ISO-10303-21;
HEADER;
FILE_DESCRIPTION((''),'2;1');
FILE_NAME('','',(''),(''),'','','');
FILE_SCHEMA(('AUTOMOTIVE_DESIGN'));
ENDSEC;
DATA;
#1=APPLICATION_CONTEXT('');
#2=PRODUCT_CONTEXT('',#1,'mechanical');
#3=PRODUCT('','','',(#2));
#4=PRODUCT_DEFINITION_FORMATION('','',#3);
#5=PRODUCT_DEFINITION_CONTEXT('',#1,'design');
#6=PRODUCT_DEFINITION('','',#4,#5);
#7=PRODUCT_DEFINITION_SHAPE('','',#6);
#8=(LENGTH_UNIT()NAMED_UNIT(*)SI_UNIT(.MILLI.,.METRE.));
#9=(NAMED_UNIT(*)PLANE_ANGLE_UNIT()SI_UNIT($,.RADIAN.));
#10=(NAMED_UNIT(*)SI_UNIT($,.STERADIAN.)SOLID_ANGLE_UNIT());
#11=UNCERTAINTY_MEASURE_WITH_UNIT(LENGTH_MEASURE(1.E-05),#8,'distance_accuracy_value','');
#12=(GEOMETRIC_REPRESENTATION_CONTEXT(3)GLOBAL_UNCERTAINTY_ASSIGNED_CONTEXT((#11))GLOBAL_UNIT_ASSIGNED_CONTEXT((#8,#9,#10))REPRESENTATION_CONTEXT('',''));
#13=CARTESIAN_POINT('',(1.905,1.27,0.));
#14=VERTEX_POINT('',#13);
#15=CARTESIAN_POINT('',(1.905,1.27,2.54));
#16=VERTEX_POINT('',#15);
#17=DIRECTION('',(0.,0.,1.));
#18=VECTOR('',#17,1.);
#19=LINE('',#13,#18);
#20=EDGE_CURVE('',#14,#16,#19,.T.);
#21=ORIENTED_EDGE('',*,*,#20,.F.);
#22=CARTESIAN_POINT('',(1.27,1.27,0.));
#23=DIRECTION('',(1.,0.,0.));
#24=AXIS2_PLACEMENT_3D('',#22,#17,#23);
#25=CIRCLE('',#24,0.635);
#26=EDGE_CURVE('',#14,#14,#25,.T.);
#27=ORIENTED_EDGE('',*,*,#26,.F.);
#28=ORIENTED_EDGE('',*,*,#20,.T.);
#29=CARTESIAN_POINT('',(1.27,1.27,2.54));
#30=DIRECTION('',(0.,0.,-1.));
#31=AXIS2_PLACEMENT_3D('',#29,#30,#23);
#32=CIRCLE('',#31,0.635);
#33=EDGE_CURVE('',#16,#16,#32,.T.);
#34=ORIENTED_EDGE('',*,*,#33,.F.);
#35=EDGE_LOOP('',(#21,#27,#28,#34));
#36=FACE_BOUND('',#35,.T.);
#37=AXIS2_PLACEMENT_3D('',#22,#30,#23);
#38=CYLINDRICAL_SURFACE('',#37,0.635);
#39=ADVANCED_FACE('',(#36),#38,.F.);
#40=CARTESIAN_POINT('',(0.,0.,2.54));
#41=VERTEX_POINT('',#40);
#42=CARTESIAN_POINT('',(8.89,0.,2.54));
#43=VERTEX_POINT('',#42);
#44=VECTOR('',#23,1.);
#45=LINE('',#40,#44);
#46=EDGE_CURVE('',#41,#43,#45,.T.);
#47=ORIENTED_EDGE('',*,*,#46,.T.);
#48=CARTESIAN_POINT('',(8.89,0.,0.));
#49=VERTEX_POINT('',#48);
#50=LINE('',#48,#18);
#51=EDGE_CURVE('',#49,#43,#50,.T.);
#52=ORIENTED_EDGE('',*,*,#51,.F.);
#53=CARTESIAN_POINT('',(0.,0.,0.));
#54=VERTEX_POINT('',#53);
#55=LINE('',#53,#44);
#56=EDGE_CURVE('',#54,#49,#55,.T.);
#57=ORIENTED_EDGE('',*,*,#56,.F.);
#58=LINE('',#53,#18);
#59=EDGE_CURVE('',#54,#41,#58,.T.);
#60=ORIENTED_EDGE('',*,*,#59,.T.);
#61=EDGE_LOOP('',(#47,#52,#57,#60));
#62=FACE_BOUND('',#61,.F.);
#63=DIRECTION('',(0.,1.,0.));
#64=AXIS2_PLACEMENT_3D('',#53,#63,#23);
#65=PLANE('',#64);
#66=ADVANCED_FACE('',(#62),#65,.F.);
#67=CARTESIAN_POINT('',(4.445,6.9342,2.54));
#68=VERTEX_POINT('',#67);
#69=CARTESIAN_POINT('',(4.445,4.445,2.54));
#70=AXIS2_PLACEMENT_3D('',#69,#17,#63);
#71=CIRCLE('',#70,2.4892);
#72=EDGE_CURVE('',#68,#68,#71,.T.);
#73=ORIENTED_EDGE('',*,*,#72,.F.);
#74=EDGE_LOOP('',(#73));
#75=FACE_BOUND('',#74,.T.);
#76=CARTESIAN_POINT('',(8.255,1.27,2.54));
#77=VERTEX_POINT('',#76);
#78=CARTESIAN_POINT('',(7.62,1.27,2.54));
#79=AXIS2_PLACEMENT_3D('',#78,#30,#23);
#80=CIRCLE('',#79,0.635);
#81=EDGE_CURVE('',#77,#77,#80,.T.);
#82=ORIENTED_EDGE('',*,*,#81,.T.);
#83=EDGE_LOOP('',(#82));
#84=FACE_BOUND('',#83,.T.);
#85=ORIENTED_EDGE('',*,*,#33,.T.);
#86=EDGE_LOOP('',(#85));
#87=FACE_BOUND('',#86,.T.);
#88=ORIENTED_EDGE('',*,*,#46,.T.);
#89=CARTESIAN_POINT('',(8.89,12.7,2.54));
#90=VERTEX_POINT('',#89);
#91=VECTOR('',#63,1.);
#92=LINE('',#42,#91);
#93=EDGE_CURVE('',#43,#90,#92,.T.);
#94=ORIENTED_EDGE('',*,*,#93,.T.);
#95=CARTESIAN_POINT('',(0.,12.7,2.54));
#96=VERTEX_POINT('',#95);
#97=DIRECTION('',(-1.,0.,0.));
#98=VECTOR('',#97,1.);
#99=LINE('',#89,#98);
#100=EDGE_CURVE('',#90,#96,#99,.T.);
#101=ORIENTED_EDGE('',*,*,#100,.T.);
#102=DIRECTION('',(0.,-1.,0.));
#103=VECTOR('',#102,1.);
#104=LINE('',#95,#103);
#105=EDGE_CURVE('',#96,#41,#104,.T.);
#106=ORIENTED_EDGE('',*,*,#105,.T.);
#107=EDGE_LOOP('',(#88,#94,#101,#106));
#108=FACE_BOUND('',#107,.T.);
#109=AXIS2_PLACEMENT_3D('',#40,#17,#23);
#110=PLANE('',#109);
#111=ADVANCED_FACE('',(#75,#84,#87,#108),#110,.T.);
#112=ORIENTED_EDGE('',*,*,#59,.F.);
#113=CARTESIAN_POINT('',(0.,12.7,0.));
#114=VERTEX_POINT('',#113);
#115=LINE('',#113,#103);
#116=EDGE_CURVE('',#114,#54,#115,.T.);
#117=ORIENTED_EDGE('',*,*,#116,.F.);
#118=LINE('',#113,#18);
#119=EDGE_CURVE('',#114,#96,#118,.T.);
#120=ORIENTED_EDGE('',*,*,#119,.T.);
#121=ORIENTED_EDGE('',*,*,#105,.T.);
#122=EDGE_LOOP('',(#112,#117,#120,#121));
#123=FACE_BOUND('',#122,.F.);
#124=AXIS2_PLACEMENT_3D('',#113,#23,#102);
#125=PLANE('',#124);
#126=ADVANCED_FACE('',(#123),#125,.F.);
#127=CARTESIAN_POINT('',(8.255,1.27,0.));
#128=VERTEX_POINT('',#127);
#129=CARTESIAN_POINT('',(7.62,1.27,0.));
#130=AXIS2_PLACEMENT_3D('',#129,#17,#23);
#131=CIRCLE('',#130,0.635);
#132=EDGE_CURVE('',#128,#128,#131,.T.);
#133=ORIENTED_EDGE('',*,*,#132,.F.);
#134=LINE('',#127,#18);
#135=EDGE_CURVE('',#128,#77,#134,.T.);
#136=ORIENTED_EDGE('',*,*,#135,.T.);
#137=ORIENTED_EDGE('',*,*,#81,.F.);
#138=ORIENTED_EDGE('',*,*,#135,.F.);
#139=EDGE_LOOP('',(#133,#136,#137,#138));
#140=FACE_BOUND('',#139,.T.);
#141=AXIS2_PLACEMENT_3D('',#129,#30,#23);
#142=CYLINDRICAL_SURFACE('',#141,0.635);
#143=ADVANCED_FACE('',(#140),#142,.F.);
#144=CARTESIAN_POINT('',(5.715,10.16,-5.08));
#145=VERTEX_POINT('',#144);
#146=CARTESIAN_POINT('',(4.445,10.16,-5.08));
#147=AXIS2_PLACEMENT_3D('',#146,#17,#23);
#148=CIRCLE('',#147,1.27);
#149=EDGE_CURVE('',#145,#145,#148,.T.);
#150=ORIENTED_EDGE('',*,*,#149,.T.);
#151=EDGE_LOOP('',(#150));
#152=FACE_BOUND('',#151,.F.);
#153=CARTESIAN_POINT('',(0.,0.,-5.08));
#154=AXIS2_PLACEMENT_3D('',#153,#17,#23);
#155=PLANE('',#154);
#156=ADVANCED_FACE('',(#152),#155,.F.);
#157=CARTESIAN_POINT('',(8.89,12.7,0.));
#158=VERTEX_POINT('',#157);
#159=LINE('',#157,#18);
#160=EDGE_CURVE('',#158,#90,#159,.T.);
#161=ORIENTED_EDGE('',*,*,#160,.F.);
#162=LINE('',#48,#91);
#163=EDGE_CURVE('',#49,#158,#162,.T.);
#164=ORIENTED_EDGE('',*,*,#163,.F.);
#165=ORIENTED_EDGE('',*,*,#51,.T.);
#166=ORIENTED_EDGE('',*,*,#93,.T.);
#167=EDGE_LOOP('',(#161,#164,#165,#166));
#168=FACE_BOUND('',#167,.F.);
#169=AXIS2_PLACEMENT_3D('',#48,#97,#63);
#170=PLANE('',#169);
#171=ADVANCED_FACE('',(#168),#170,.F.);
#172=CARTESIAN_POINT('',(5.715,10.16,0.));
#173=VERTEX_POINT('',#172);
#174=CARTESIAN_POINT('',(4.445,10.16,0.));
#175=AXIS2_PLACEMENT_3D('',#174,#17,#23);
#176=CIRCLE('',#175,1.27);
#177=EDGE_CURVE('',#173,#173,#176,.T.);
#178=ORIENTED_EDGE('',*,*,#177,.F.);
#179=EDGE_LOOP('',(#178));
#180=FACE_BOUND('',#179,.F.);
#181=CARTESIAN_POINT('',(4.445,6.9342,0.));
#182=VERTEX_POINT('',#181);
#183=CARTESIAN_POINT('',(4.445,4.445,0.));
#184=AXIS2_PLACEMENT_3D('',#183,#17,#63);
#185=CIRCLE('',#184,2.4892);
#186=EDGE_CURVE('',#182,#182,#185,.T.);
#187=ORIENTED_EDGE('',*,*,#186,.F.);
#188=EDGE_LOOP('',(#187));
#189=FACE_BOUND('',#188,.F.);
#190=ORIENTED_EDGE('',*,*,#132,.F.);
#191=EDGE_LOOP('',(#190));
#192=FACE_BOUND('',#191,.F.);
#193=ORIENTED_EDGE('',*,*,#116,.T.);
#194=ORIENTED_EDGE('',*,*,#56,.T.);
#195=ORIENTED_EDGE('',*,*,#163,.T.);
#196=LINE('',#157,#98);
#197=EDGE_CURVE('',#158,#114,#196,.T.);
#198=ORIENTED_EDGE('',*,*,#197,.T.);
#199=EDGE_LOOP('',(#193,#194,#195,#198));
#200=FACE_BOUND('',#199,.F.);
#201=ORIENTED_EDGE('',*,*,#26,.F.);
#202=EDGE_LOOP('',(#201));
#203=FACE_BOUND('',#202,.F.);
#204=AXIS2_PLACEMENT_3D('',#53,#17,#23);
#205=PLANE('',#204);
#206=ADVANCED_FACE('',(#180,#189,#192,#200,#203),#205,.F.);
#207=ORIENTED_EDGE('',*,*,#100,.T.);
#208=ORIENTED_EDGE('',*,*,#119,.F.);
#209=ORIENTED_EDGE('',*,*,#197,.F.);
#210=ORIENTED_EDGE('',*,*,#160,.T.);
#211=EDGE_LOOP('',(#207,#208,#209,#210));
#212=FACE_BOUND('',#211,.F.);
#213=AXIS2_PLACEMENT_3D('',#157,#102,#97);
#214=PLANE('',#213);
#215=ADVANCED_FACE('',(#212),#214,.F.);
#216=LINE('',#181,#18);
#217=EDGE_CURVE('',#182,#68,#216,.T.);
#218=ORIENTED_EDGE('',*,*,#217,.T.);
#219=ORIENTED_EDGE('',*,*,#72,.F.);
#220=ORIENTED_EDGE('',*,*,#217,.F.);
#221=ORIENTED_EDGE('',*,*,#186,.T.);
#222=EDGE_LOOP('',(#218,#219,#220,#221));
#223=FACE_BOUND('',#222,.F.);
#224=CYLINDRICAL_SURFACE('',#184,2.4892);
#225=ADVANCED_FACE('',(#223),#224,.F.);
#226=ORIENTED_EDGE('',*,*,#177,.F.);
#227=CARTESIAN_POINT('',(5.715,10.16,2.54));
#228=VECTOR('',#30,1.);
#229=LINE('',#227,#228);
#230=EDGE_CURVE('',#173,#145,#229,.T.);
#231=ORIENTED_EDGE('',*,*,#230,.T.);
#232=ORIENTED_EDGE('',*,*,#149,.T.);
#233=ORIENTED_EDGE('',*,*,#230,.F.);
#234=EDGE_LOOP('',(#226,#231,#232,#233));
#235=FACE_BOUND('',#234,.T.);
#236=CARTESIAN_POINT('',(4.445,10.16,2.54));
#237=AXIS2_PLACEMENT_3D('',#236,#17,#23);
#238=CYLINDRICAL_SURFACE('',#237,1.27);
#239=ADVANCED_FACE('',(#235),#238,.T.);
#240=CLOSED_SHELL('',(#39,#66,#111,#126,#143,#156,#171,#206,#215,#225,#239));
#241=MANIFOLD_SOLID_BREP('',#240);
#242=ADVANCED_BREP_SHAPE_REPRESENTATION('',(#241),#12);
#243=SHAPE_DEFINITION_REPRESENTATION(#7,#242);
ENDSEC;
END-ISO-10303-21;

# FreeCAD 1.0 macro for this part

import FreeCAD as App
import Part
import Sketcher
Q = App.Units.Quantity


def add_polygon(sketch, points):
    """Adds a closed chain of lines whose ends are joined by coincident constraints."""
    first, n = sketch.GeometryCount, len(points)
    for a, b in zip(points, points[1:] + points[:1]):
        sketch.addGeometry(Part.LineSegment(App.Vector(*a, 0), App.Vector(*b, 0)), False)
    for i in range(n):
        sketch.addConstraint(Sketcher.Constraint("Coincident", first + i, 2, first + (i + 1) % n, 1))

doc = App.newDocument("Part")
body = doc.addObject("PartDesign::Body", "Body")

# Sketch on XY plane
sketch1 = body.newObject("Sketcher::SketchObject", "Sketch")
sketch1.AttachmentSupport = (doc.getObject("XY_Plane"), [""])
sketch1.MapMode = "FlatFace"
add_polygon(sketch1, [(0, 13), (0, 0), (9, 0), (9, 13)])  # lines 0-3
sketch1.addConstraint([
    Sketcher.Constraint("Vertical", 0),
    Sketcher.Constraint("Horizontal", 1),
    Sketcher.Constraint("Vertical", 2),
    Sketcher.Constraint("Horizontal", 3),
    Sketcher.Constraint("Coincident", 0, 2, -1, 1),
    Sketcher.Constraint("DistanceY", 0, 2, 0, 1, Q("0.5 in")),
    Sketcher.Constraint("DistanceX", 1, 1, 1, 2, Q("0.35 in")),
])
pad1 = body.newObject("PartDesign::Pad", "Pad")
pad1.Profile = sketch1
pad1.Length = Q("0.1 in")

# Sketch on XY plane
sketch2 = body.newObject("Sketcher::SketchObject", "Sketch001")
sketch2.AttachmentSupport = (doc.getObject("XY_Plane"), [""])
sketch2.MapMode = "FlatFace"
sketch2.AttachmentOffset = App.Placement(App.Vector(0, 0, 0.1 * 25.4), App.Rotation())
sketch2.addGeometry(Part.Circle(App.Vector(4.4, 10.2, 0), App.Vector(0, 0, 1), 1.3), False)
sketch2.addConstraint([
    Sketcher.Constraint("Diameter", 0, Q("0.1 in")),
    Sketcher.Constraint("DistanceX", -1, 1, 0, 3, Q("0.175 in")),
    Sketcher.Constraint("DistanceY", -1, 1, 0, 3, Q("0.4 in")),
])
pad2 = body.newObject("PartDesign::Pad", "Pad001")
pad2.Profile = sketch2
pad2.Length = Q("0.3 in")
pad2.Reversed = True

# Sketch on XY plane
sketch3 = body.newObject("Sketcher::SketchObject", "Sketch002")
sketch3.AttachmentSupport = (doc.getObject("XY_Plane"), [""])
sketch3.MapMode = "FlatFace"
sketch3.addGeometry(Part.Circle(App.Vector(4.4, 4.4, 0), App.Vector(0, 0, 1), 2.5), False)
sketch3.addConstraint([
    Sketcher.Constraint("Diameter", 0, Q("0.196 in")),
    Sketcher.Constraint("DistanceX", -1, 1, 0, 3, Q("0.175 in")),
    Sketcher.Constraint("DistanceY", -1, 1, 0, 3, Q("0.175 in")),
])
doc.recompute()
hole = body.newObject("PartDesign::Hole", "Hole")
hole.Profile = sketch3
hole.ThreadType = "None"
hole.Diameter = Q("0.196 in")
hole.DepthType = "Dimension"
hole.Depth = Q("0.75 in")
hole.DrillPoint = "Angled"
hole.DrillPointAngle = 118
hole.Reversed = True

# Sketch on XY plane
sketch4 = body.newObject("Sketcher::SketchObject", "Sketch003")
sketch4.AttachmentSupport = (doc.getObject("XY_Plane"), [""])
sketch4.MapMode = "FlatFace"
sketch4.addGeometry([
    Part.Circle(App.Vector(7.6, 1.3, 0), App.Vector(0, 0, 1), 0.6),
    Part.Circle(App.Vector(1.3, 1.3, 0), App.Vector(0, 0, 1), 0.6),
], False)
sketch4.addConstraint([
    Sketcher.Constraint("Equal", 0, 1),
    Sketcher.Constraint("Horizontal", 0, 3, 1, 3),
    Sketcher.Constraint("Diameter", 0, Q("0.05 in")),
    Sketcher.Constraint("DistanceY", -1, 1, 0, 3, Q("0.05 in")),
    Sketcher.Constraint("DistanceX", -1, 1, 1, 3, Q("0.05 in")),
    Sketcher.Constraint("DistanceX", -1, 1, 0, 3, Q("0.3 in")),
])
pocket1 = body.newObject("PartDesign::Pocket", "Pocket")
pocket1.Profile = sketch4
pocket1.Length = Q("0.2 in")
pocket1.Reversed = True

doc.recompute()
